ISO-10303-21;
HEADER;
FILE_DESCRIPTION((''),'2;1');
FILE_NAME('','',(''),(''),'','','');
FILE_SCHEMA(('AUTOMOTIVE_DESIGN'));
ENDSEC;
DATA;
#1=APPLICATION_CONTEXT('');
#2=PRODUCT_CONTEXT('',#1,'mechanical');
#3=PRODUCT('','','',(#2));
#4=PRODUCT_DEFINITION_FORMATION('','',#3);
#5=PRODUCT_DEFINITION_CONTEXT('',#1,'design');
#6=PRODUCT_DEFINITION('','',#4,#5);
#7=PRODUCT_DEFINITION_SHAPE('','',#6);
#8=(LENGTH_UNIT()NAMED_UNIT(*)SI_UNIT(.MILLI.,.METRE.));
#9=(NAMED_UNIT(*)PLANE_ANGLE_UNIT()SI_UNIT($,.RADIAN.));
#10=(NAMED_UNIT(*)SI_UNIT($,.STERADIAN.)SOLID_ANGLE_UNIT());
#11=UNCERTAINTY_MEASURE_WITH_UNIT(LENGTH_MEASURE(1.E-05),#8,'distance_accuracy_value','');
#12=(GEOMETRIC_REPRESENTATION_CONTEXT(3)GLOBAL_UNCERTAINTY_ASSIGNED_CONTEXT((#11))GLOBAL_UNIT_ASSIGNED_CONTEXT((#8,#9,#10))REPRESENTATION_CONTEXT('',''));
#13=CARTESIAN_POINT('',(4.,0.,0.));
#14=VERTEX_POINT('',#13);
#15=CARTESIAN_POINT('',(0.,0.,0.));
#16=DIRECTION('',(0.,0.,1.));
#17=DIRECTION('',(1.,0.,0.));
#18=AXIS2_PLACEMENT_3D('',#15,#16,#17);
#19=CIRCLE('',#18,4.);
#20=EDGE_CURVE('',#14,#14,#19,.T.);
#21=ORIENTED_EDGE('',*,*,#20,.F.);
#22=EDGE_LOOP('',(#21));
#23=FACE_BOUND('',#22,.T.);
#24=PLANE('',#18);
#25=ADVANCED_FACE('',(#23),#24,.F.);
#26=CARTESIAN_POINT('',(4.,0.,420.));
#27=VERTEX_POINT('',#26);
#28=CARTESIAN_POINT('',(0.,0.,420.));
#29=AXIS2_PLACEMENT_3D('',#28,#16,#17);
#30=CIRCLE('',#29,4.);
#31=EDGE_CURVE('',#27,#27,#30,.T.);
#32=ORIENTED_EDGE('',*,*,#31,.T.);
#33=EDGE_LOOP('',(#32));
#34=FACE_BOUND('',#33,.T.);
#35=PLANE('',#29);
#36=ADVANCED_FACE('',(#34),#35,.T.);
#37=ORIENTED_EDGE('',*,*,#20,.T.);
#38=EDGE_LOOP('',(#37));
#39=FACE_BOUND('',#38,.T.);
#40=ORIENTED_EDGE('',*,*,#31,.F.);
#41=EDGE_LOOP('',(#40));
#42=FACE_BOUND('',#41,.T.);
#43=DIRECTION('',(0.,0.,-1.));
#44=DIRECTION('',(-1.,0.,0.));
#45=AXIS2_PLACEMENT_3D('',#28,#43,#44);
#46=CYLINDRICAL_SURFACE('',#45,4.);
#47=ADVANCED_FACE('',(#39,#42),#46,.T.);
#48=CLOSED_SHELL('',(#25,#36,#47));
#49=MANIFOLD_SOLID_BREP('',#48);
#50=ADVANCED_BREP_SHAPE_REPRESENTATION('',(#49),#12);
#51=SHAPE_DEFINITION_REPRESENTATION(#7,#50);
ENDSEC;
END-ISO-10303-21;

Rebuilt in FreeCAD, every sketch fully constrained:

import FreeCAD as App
import Part
import Sketcher

doc = App.newDocument("Part")
params = doc.addObject("Spreadsheet::Sheet", "Params")
for row, (alias, value) in enumerate([
    ("sketch1_diameter", "8 mm"),
    ("pad1_length", "420 mm"),
], start=1):
    params.set(f"A{row}", alias)
    params.set(f"B{row}", "=" + value)
    params.setAlias(f"B{row}", alias)

body = doc.addObject("PartDesign::Body", "Body")

# Sketch on XY plane
sketch1 = body.newObject("Sketcher::SketchObject", "Sketch")
sketch1.AttachmentSupport = (doc.getObject("XY_Plane"), [""])
sketch1.MapMode = "FlatFace"
sketch1.addGeometry(Part.Circle(App.Vector(0, 0, 0), App.Vector(0, 0, 1), 4), False)
sketch1.addConstraint(Sketcher.Constraint("Coincident", 0, 3, -1, 1))
sketch1.addConstraint(Sketcher.Constraint("Diameter", 0, 8.0))
sketch1.setExpression("Constraints[1]", "Params.sketch1_diameter")
pad1 = body.newObject("PartDesign::Pad", "Pad")
pad1.Profile = sketch1
pad1.setExpression("Length", "Params.pad1_length")

doc.recompute()
